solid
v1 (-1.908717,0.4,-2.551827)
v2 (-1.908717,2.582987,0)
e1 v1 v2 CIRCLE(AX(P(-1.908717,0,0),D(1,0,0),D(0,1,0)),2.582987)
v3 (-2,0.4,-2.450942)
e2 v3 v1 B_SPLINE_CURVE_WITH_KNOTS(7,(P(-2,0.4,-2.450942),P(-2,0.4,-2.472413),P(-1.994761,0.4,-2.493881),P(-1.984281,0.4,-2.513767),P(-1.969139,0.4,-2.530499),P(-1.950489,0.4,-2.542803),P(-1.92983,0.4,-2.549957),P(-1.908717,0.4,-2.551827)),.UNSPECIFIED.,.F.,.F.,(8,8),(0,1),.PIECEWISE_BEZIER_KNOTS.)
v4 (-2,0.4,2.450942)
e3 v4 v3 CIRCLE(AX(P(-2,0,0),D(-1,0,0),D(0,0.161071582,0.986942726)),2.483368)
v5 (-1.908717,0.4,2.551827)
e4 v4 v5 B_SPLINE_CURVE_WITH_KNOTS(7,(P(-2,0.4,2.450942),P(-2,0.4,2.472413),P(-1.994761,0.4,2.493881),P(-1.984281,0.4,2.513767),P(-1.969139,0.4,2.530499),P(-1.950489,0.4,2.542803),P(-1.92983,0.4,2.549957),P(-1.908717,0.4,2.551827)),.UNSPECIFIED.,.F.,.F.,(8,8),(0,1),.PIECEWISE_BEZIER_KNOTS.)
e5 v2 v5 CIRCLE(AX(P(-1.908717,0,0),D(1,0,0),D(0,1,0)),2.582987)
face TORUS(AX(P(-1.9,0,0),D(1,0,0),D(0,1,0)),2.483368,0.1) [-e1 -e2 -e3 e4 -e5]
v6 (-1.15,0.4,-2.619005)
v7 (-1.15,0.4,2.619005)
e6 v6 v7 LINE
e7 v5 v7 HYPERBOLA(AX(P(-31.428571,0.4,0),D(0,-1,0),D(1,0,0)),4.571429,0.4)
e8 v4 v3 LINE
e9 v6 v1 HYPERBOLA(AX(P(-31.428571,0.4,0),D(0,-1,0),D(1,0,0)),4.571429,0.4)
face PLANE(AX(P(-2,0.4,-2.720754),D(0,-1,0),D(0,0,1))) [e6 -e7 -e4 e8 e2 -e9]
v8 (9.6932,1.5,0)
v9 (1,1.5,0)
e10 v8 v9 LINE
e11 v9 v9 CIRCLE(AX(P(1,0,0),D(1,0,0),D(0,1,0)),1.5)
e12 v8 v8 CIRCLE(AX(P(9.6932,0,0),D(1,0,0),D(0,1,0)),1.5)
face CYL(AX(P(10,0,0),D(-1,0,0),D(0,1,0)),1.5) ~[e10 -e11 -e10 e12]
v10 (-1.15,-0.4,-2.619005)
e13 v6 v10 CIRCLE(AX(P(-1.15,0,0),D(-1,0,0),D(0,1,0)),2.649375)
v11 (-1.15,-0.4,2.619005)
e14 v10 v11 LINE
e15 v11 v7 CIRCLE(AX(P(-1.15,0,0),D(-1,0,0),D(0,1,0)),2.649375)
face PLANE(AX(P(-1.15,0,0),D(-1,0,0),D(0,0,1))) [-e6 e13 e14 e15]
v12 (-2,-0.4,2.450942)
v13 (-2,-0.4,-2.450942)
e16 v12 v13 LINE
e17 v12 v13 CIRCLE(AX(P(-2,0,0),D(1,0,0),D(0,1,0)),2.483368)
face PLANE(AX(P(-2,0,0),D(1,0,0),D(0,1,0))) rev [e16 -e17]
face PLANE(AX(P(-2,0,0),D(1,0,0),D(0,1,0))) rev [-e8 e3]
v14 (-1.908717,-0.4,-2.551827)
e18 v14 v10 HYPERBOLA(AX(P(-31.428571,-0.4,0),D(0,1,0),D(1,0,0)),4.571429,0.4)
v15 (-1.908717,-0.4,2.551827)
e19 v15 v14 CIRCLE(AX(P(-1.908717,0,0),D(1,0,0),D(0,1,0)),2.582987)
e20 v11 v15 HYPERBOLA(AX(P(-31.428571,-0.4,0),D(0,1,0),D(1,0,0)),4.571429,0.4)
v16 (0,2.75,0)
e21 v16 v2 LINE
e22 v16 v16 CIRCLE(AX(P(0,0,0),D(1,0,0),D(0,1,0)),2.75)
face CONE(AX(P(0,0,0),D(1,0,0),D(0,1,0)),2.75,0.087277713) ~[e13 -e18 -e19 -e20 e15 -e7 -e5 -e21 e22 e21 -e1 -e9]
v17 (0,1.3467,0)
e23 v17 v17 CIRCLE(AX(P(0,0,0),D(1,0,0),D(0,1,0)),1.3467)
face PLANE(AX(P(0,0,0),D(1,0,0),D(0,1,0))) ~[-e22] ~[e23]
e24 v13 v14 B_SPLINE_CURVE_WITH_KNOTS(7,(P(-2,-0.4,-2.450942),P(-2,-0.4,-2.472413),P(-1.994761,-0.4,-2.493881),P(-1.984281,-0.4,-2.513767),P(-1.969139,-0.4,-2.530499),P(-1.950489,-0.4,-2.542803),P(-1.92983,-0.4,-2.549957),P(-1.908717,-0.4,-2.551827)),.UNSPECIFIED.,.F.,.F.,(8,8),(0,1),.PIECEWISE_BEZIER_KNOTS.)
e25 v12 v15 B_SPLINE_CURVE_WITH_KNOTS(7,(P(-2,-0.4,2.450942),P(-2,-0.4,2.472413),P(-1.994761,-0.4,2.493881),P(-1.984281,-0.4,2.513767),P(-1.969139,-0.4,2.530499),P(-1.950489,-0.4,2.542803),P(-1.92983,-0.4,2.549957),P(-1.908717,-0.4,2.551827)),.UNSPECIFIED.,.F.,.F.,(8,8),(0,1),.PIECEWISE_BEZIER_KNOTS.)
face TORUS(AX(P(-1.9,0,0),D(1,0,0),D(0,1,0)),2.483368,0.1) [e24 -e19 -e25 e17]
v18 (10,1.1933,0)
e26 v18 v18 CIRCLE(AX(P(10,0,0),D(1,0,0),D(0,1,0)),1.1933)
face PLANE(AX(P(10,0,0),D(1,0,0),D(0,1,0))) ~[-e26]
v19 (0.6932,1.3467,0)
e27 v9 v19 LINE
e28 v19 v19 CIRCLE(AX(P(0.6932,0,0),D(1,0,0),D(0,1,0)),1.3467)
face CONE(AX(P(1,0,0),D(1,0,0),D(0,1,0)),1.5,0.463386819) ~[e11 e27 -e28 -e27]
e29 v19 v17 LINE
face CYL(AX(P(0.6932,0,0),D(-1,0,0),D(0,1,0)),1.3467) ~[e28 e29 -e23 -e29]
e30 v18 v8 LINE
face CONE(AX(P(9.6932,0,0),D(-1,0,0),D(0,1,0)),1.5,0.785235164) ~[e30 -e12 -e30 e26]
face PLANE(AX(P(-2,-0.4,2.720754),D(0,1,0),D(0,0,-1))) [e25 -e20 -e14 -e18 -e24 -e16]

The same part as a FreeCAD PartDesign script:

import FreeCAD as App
import Part
import Sketcher

V = App.Vector
Q = App.Units.Quantity


def edges_at(feature, points):
    """Names of the edges that pass closest to the given points."""
    edges = feature.Shape.Edges
    near = lambda p: min(range(len(edges)), key=lambda i: edges[i].distToShape(Part.Vertex(*p))[0])
    return sorted({f"Edge{near(p) + 1}" for p in points})

doc = App.newDocument("Part")
body = doc.addObject("PartDesign::Body", "Body")

# Sketch on XY plane
sketch1 = doc.addObject("Sketcher::SketchObject", "Sketch")
body.addObject(sketch1)
sketch1.AttachmentSupport = (doc.XY_Plane, [""])
sketch1.MapMode = "FlatFace"
sketch1.addGeometry([
    Part.LineSegment(V(-2, 2.58, 0), V(-2, 0, 0)),  # 0
    Part.LineSegment(V(-2, 0, 0), V(10, 0, 0)),  # 1
    Part.LineSegment(V(10, 0, 0), V(10, 1.5, 0)),  # 2
    Part.LineSegment(V(10, 1.5, 0), V(1, 1.5, 0)),  # 3
    Part.LineSegment(V(1, 1.5, 0), V(0.69, 1.35, 0)),  # 4
    Part.LineSegment(V(0.69, 1.35, 0), V(0, 1.35, 0)),  # 5
    Part.LineSegment(V(0, 1.35, 0), V(0, 2.75, 0)),  # 6
    Part.LineSegment(V(0, 2.75, 0), V(-2, 2.58, 0)),  # 7
], False)
sketch1.addConstraint([
    Sketcher.Constraint("Coincident", 0, 2, 1, 1),
    Sketcher.Constraint("Coincident", 1, 2, 2, 1),
    Sketcher.Constraint("Coincident", 2, 2, 3, 1),
    Sketcher.Constraint("Coincident", 3, 2, 4, 1),
    Sketcher.Constraint("Coincident", 4, 2, 5, 1),
    Sketcher.Constraint("Coincident", 5, 2, 6, 1),
    Sketcher.Constraint("Coincident", 6, 2, 7, 1),
    Sketcher.Constraint("Coincident", 7, 2, 0, 1),
    Sketcher.Constraint("Vertical", 0),
    Sketcher.Constraint("Horizontal", 1),
    Sketcher.Constraint("Vertical", 2),
    Sketcher.Constraint("Horizontal", 3),
    Sketcher.Constraint("Horizontal", 5),
    Sketcher.Constraint("Vertical", 6),
    Sketcher.Constraint("PointOnObject", 0, 2, -1),
    Sketcher.Constraint("PointOnObject", 5, 2, -2),
    Sketcher.Constraint("DistanceX", 3, 2, 3, 1, Q("9 mm")),
    Sketcher.Constraint("DistanceX", 0, 2, -1, 1, Q("2 mm")),
    Sketcher.Constraint("DistanceX", -1, 1, 1, 2, Q("10 mm")),
    Sketcher.Constraint("Angle", 7, Q("-174.9994 deg")),
    Sketcher.Constraint("DistanceY", 2, 1, 2, 2, Q("1.5 mm")),
    Sketcher.Constraint("Angle", 4, Q("-153.45 deg")),
    Sketcher.Constraint("DistanceX", 4, 2, 3, 2, Q("0.3068 mm")),
    Sketcher.Constraint("DistanceY", 0, 2, 0, 1, Q("2.575 mm")),
])
revolution = doc.addObject("PartDesign::Revolution", "Revolution")
body.addObject(revolution)
revolution.Profile = sketch1
revolution.ReferenceAxis = (sketch1, ["H_Axis"])
revolution.Angle = 360
doc.recompute()

fillet = doc.addObject("PartDesign::Fillet", "Fillet")
body.addObject(fillet)
fillet.Base = (revolution, edges_at(revolution, [(-2, -2.575, 0)]))
fillet.Radius = 0.1

# Sketch on YZ plane
sketch2 = doc.addObject("Sketcher::SketchObject", "Sketch001")
body.addObject(sketch2)
sketch2.AttachmentSupport = (doc.YZ_Plane, [""])
sketch2.MapMode = "FlatFace"
sketch2.AttachmentOffset = App.Placement(V(0, 0, -2), App.Rotation())
sketch2.addGeometry([
    Part.LineSegment(V(-0.4, 2.8, 0), V(0.4, 2.8, 0)),
    Part.LineSegment(V(0.4, 2.8, 0), V(0.4, -2.8, 0)),
    Part.LineSegment(V(0.4, -2.8, 0), V(-0.4, -2.8, 0)),
    Part.LineSegment(V(-0.4, -2.8, 0), V(-0.4, 2.8, 0)),
], False)
sketch2.addConstraint([
    Sketcher.Constraint("Coincident", 0, 2, 1, 1),
    Sketcher.Constraint("Coincident", 1, 2, 2, 1),
    Sketcher.Constraint("Coincident", 2, 2, 3, 1),
    Sketcher.Constraint("Coincident", 3, 2, 0, 1),
    Sketcher.Constraint("Horizontal", 0),
    Sketcher.Constraint("Vertical", 1),
    Sketcher.Constraint("Horizontal", 2),
    Sketcher.Constraint("Vertical", 3),
    Sketcher.Constraint("Symmetric", 0, 2, 2, 2, -1, 1),
    Sketcher.Constraint("DistanceX", 0, 1, 0, 2, Q("0.8 mm")),
    Sketcher.Constraint("DistanceY", 1, 2, 1, 1, Q("5.5 mm")),
])
pocket1 = doc.addObject("PartDesign::Pocket", "Pocket")
body.addObject(pocket1)
pocket1.Profile = sketch2
pocket1.Length = 0.85
pocket1.Reversed = True
doc.recompute()

chamfer = doc.addObject("PartDesign::Chamfer", "Chamfer")
body.addObject(chamfer)
chamfer.Base = (pocket1, edges_at(pocket1, [(10, -1.5, 0)]))
chamfer.ChamferType = "Two distances"
chamfer.Size = 0.3067
chamfer.Size2 = 0.3068

doc.recompute()
